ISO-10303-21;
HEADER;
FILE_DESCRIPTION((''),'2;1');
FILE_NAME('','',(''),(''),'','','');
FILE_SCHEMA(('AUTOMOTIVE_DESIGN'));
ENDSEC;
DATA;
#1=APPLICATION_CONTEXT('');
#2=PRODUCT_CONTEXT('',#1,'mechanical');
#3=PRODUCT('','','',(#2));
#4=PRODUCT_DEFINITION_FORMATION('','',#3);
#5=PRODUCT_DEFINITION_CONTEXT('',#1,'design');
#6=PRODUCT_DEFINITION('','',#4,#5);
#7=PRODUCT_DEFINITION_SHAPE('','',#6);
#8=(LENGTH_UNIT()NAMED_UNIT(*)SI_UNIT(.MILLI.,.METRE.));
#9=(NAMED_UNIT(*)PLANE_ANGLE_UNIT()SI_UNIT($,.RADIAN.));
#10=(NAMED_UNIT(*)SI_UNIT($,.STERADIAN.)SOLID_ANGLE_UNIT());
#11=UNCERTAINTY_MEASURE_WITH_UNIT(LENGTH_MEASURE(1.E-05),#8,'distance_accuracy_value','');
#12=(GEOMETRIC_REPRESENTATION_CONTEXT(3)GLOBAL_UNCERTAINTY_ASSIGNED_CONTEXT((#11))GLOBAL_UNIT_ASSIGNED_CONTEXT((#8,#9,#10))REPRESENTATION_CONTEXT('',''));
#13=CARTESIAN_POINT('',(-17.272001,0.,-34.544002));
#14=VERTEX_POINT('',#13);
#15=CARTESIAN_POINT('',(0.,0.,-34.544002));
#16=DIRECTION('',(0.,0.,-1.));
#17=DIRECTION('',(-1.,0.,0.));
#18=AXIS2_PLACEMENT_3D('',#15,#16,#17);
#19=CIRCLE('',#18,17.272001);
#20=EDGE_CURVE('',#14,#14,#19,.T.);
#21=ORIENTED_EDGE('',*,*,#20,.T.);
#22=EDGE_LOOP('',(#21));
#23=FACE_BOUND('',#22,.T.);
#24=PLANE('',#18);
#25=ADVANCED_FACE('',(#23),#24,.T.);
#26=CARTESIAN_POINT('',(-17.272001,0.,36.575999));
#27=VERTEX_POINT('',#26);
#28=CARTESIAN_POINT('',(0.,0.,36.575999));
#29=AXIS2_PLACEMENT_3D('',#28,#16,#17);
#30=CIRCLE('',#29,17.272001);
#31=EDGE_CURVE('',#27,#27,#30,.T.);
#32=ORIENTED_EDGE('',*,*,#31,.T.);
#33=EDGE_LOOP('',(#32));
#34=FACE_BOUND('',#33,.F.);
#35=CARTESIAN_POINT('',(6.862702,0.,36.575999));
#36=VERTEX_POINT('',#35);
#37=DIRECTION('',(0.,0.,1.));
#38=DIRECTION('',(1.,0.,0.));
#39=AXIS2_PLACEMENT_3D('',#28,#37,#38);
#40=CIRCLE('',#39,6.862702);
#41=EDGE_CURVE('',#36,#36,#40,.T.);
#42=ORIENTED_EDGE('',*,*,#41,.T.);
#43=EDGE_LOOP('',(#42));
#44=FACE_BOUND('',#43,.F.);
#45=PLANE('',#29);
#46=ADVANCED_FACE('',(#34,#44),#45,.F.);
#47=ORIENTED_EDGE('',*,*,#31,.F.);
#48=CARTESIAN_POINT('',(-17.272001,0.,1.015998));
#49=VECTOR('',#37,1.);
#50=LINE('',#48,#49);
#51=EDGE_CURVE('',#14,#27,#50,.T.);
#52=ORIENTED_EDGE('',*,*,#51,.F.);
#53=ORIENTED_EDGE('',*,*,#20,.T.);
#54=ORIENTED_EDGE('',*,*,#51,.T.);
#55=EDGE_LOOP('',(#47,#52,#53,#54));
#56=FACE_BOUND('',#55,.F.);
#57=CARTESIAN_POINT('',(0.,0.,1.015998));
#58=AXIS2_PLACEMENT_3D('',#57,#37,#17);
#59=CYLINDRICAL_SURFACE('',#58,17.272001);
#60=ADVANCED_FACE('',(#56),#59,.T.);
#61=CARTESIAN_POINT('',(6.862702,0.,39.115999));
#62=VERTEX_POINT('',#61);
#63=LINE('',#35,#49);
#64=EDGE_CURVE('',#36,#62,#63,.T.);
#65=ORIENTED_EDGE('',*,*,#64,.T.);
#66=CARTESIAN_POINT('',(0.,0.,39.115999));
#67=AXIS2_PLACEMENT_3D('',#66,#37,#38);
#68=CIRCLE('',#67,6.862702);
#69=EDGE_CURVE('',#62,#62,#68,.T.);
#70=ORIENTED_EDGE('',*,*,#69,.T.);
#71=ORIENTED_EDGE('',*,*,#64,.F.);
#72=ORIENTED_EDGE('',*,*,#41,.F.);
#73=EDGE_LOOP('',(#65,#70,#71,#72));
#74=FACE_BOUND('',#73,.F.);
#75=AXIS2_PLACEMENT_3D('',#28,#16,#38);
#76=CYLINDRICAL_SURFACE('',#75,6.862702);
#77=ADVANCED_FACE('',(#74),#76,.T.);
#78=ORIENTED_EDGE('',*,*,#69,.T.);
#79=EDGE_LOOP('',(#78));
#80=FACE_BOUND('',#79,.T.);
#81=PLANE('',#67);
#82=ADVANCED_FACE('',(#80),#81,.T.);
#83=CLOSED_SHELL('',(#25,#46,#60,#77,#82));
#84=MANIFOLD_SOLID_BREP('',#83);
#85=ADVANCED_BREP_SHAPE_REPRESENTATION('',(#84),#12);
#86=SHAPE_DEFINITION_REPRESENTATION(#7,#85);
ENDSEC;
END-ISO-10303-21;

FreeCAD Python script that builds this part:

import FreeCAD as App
import Part
import Sketcher
Q = App.Units.Quantity


def add_polygon(sketch, points):
    """Adds a closed chain of lines whose ends are joined by coincident constraints."""
    first, n = sketch.GeometryCount, len(points)
    for a, b in zip(points, points[1:] + points[:1]):
        sketch.addGeometry(Part.LineSegment(App.Vector(*a, 0), App.Vector(*b, 0)), False)
    for i in range(n):
        sketch.addConstraint(Sketcher.Constraint("Coincident", first + i, 2, first + (i + 1) % n, 1))

doc = App.newDocument("Part")
body = doc.addObject("PartDesign::Body", "Body")

# Sketch on XZ plane
sketch1 = body.newObject("Sketcher::SketchObject", "Sketch")
sketch1.AttachmentSupport = (doc.getObject("XZ_Plane"), [""])
sketch1.MapMode = "FlatFace"
add_polygon(sketch1, [(-17.272001, 36.575999), (-17.272001, -34.544002), (0, -34.544002), (0, 36.575999)])  # lines 0-3
sketch1.addConstraint(Sketcher.Constraint("Vertical", 0))
sketch1.addConstraint(Sketcher.Constraint("Horizontal", 1))
sketch1.addConstraint(Sketcher.Constraint("Vertical", 2))
sketch1.addConstraint(Sketcher.Constraint("Horizontal", 3))
sketch1.addConstraint(Sketcher.Constraint("PointOnObject", 1, 2, -2))
sketch1.addConstraint(Sketcher.Constraint("DistanceY", 0, 2, 0, 1, Q("2.8000001 in")))
sketch1.addConstraint(Sketcher.Constraint("DistanceX", 1, 1, 1, 2, Q("0.68 in")))
sketch1.addConstraint(Sketcher.Constraint("DistanceY", 0, 2, -1, 1, Q("1.3600001 in")))
revolution = body.newObject("PartDesign::Revolution", "Revolution")
revolution.Profile = sketch1
revolution.ReferenceAxis = (sketch1, ["V_Axis"])
revolution.Angle = 360

# Sketch on XY plane
sketch2 = body.newObject("Sketcher::SketchObject", "Sketch001")
sketch2.AttachmentSupport = (doc.getObject("XY_Plane"), [""])
sketch2.MapMode = "FlatFace"
sketch2.AttachmentOffset = App.Placement(App.Vector(0, 0, 1.44 * 25.4), App.Rotation())
sketch2.addGeometry(Part.Circle(App.Vector(0, 0, 0), App.Vector(0, 0, 1), 6.862702), False)
sketch2.addConstraint(Sketcher.Constraint("Coincident", 0, 3, -1, 1))
sketch2.addConstraint(Sketcher.Constraint("Diameter", 0, Q("13.725404 mm")))
pad1 = body.newObject("PartDesign::Pad", "Pad")
pad1.Profile = sketch2
pad1.Length = Q("0.1 in")

doc.recompute()
